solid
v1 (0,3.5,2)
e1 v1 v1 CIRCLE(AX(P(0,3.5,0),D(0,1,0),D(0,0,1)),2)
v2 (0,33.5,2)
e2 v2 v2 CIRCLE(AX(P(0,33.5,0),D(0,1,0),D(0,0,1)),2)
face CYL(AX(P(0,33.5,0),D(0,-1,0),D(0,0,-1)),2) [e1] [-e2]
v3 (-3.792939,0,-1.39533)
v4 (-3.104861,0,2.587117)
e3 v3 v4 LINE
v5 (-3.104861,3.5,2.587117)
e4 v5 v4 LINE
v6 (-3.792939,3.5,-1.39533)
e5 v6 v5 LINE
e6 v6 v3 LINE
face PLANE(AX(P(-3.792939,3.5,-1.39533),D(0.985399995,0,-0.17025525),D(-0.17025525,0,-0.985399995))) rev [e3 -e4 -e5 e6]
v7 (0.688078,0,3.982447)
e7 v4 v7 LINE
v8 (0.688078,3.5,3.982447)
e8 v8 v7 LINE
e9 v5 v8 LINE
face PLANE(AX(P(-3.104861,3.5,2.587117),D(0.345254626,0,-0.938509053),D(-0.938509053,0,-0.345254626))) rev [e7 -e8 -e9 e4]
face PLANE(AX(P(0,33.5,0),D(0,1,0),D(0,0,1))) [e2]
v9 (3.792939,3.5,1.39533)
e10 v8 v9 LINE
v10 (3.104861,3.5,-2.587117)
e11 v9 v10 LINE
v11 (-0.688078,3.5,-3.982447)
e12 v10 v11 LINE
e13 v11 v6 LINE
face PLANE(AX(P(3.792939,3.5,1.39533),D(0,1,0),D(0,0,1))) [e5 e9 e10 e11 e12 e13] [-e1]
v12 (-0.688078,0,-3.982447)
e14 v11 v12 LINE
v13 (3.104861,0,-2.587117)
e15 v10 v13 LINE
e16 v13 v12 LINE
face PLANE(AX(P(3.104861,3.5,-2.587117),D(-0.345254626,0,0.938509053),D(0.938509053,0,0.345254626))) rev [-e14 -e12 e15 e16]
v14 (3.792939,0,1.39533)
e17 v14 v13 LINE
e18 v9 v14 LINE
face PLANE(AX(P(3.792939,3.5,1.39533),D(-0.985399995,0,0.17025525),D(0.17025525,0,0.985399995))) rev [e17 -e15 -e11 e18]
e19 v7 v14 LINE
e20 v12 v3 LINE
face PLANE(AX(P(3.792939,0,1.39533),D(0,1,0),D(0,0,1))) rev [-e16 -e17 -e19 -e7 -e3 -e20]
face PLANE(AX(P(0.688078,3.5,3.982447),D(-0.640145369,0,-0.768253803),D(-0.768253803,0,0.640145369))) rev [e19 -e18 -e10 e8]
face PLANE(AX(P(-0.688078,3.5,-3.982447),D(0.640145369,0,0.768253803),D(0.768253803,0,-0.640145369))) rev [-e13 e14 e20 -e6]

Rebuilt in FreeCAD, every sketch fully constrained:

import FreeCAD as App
import Part
import Sketcher
from FreeCAD import Vector
Q = App.Units.Quantity


def add_polygon(sketch, points):
    """Adds a closed chain of lines whose ends are joined by coincident constraints."""
    first, n = sketch.GeometryCount, len(points)
    for a, b in zip(points, points[1:] + points[:1]):
        sketch.addGeometry(Part.LineSegment(App.Vector(*a, 0), App.Vector(*b, 0)), False)
    for i in range(n):
        sketch.addConstraint(Sketcher.Constraint("Coincident", first + i, 2, first + (i + 1) % n, 1))

doc = App.newDocument("Part")
params = doc.addObject("Spreadsheet::Sheet", "Params")
for row, (alias, value) in enumerate([
    ("pad1_length", "3.5 mm"),
    ("sketch2_diameter", "4 mm"),
    ("pad2_length", "30 mm"),
], start=1):
    params.set(f"A{row}", alias)
    params.set(f"B{row}", "=" + value)
    params.setAlias(f"B{row}", alias)

body = doc.addObject("PartDesign::Body", "Body")

# Sketch on XZ plane
sketch1 = doc.addObject("Sketcher::SketchObject", "Sketch")
body.addObject(sketch1)
sketch1.AttachmentSupport = (doc.XZ_Plane, [""])
sketch1.MapMode = "FlatFace"
add_polygon(sketch1, [(3.8, 1.4), (3.1, -2.6), (-0.7, -4), (-3.8, -1.4), (-3.1, 2.6), (0.7, 4)])  # lines 0-5
sketch1.addConstraint(Sketcher.Constraint("Symmetric", 0, 2, 3, 2, -1, 1))
sketch1.addConstraint(Sketcher.Constraint("Symmetric", 1, 2, 4, 2, -1, 1))
sketch1.addConstraint(Sketcher.Constraint("Symmetric", 2, 2, 5, 2, -1, 1))
sketch1.addConstraint(Sketcher.Constraint("Equal", 0, 1))
sketch1.addConstraint(Sketcher.Constraint("Equal", 1, 2))
sketch1.addConstraint(Sketcher.Constraint("DistanceX", 2, 2, 0, 2, Q("6.8978 mm")))
sketch1.addConstraint(Sketcher.Constraint("Distance", 0, Q("4.041452 mm")))
sketch1.addConstraint(Sketcher.Constraint("DistanceX", -1, 1, 0, 2, Q("3.104861 mm")))
sketch1.addConstraint(Sketcher.Constraint("DistanceX", 1, 2, -1, 1, Q("0.688078 mm")))
pad1 = doc.addObject("PartDesign::Pad", "Pad")
body.addObject(pad1)
pad1.Profile = sketch1
pad1.setExpression("Length", "Params.pad1_length")
pad1.Reversed = True

# Sketch on XZ plane
sketch2 = doc.addObject("Sketcher::SketchObject", "Sketch001")
body.addObject(sketch2)
sketch2.AttachmentSupport = (doc.XZ_Plane, [""])
sketch2.MapMode = "FlatFace"
sketch2.AttachmentOffset = App.Placement(Vector(0, 0, -3.5), App.Rotation())
sketch2.addGeometry(Part.Circle(Vector(0, 0, 0), Vector(0, 0, 1), 2), False)
sketch2.addConstraint(Sketcher.Constraint("Coincident", 0, 3, -1, 1))
sketch2.addConstraint(Sketcher.Constraint("Diameter", 0, Q("4 mm")))
sketch2.setExpression("Constraints[1]", "Params.sketch2_diameter")
pad2 = doc.addObject("PartDesign::Pad", "Pad001")
body.addObject(pad2)
pad2.Profile = sketch2
pad2.setExpression("Length", "Params.pad2_length")
pad2.Reversed = True

doc.recompute()
